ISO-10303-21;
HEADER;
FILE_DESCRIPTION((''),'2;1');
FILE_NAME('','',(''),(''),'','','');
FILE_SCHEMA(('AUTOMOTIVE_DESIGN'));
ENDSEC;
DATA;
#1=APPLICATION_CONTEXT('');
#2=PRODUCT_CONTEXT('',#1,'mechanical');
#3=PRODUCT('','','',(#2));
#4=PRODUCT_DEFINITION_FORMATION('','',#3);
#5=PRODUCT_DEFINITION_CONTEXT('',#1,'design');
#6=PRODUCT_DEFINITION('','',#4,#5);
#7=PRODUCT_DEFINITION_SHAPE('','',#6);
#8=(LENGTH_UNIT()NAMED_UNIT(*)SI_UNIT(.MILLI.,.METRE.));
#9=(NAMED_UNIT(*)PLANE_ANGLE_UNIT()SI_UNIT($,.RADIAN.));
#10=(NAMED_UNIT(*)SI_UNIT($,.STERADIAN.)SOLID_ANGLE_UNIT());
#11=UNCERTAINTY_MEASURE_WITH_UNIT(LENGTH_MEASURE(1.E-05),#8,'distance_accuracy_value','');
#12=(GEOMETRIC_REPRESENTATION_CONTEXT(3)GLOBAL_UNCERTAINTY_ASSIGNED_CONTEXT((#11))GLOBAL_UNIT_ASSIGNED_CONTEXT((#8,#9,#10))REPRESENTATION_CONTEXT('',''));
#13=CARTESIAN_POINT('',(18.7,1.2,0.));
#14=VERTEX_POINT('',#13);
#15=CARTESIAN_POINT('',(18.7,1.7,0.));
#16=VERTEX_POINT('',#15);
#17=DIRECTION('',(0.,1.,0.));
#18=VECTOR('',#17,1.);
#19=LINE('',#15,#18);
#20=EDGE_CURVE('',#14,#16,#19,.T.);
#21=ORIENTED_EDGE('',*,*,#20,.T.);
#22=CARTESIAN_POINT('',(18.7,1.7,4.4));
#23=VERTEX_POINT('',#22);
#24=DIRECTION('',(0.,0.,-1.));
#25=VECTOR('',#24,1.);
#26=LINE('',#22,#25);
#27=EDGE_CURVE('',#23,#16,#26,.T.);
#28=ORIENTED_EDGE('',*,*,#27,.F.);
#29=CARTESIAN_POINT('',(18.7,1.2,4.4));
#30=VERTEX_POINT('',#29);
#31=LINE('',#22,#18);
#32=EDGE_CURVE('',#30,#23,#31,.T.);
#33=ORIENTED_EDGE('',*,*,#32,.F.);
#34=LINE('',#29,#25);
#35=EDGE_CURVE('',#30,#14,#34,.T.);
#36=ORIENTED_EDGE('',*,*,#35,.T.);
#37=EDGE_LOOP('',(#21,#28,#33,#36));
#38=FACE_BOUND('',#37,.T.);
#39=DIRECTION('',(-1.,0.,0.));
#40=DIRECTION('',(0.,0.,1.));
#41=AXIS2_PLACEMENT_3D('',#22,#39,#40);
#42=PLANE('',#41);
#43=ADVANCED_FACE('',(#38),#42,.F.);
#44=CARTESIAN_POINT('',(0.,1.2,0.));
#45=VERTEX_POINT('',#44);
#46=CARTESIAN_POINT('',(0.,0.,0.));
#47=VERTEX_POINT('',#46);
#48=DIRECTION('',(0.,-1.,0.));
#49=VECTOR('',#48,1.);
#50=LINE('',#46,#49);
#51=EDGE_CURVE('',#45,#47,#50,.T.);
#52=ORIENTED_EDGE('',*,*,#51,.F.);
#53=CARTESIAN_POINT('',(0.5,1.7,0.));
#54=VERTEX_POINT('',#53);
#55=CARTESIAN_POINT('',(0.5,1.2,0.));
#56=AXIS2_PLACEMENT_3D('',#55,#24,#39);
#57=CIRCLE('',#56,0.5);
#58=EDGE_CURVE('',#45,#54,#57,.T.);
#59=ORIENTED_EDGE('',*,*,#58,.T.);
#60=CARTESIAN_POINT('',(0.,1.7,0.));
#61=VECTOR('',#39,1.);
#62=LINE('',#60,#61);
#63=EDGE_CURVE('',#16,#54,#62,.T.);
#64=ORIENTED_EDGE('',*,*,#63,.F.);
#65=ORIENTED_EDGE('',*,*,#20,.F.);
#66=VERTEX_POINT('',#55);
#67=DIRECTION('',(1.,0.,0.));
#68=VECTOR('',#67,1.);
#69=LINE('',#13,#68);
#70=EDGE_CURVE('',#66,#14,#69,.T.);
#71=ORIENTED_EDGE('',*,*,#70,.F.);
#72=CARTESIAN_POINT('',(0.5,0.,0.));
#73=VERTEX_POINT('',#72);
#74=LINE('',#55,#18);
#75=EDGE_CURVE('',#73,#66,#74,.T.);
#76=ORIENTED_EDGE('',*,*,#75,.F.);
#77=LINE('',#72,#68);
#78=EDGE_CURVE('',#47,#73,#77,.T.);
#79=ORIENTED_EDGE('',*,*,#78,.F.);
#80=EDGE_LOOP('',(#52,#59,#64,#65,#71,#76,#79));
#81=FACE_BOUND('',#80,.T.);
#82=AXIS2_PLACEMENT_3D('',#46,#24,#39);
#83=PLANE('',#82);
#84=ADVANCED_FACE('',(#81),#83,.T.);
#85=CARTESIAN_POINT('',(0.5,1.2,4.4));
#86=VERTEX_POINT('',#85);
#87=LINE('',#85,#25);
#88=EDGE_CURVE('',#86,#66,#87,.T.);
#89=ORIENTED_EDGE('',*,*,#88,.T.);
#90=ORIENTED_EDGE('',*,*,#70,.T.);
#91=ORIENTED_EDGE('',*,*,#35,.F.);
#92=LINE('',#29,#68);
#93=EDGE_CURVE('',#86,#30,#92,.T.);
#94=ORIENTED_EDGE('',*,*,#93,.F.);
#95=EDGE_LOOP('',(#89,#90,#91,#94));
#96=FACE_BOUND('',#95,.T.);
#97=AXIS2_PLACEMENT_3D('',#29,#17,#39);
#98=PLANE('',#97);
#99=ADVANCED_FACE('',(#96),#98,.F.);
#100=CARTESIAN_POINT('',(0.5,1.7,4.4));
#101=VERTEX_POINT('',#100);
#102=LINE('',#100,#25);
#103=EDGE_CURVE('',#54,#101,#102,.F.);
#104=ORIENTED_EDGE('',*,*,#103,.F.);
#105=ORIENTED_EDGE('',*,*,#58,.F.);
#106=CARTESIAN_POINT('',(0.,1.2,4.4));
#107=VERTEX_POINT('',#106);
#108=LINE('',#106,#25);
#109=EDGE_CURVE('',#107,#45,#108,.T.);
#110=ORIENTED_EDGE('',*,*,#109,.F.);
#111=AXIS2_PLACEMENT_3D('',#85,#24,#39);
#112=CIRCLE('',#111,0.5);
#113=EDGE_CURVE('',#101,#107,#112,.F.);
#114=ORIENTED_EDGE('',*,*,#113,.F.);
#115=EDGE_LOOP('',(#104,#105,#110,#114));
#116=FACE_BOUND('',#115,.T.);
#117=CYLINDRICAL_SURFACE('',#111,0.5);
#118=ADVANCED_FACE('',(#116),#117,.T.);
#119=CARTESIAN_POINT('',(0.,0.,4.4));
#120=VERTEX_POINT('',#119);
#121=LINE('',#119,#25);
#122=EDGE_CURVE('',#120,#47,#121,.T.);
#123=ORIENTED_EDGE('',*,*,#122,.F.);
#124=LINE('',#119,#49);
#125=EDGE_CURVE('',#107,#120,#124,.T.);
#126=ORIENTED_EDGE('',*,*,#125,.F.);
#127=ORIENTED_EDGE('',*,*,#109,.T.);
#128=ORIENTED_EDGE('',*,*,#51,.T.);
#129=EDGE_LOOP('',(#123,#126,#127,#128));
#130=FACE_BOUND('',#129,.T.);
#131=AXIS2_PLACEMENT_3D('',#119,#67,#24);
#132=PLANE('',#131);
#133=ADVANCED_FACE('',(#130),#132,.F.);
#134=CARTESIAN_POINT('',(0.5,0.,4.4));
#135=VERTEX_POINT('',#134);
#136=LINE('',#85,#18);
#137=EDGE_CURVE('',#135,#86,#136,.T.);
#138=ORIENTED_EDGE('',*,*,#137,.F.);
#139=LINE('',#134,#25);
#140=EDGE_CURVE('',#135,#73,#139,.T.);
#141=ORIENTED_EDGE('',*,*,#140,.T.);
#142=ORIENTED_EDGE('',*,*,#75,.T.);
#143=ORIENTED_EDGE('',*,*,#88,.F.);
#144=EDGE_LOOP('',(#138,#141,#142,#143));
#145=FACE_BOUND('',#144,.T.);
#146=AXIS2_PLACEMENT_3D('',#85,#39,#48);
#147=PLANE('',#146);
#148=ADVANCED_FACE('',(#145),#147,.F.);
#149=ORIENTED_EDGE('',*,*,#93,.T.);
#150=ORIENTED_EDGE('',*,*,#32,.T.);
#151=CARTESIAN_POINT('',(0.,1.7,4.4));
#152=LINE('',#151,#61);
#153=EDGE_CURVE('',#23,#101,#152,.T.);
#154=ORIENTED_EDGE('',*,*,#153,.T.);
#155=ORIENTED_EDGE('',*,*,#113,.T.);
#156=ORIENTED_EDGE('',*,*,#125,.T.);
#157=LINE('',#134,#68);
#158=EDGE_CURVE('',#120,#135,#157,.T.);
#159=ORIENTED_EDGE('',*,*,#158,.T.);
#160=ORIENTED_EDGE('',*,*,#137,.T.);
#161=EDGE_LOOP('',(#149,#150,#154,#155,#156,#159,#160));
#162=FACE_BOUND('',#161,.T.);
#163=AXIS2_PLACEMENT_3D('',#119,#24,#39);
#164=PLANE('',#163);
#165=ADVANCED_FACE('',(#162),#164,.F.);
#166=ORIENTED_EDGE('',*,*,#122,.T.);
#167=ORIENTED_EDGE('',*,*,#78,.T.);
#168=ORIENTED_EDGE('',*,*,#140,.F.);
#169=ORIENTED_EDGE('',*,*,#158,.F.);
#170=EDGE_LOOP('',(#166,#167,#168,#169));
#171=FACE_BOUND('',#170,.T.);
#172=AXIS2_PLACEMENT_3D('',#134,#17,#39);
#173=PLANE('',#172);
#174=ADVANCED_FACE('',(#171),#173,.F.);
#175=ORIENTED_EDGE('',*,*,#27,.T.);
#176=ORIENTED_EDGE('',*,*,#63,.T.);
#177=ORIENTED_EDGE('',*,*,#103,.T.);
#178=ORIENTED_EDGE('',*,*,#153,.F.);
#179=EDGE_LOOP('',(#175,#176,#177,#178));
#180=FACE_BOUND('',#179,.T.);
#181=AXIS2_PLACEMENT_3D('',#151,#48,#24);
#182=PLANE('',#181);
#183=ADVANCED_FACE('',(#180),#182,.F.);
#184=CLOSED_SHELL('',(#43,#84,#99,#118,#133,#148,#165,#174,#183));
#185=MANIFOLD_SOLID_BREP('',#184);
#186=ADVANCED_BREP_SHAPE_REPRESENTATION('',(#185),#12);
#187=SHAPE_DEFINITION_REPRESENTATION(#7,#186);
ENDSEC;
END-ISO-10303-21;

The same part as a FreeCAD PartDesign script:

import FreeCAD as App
import Part
import Sketcher

V = App.Vector
Q = App.Units.Quantity


def edges_at(feature, points):
    """Names of the edges that pass closest to the given points."""
    edges = feature.Shape.Edges
    near = lambda p: min(range(len(edges)), key=lambda i: edges[i].distToShape(Part.Vertex(*p))[0])
    return sorted({f"Edge{near(p) + 1}" for p in points})


def add_polygon(sketch, points):
    """Adds a closed chain of lines whose ends are joined by coincident constraints."""
    first, n = sketch.GeometryCount, len(points)
    for a, b in zip(points, points[1:] + points[:1]):
        sketch.addGeometry(Part.LineSegment(App.Vector(*a, 0), App.Vector(*b, 0)), False)
    for i in range(n):
        sketch.addConstraint(Sketcher.Constraint("Coincident", first + i, 2, first + (i + 1) % n, 1))

doc = App.newDocument("Part")
body = doc.addObject("PartDesign::Body", "Body")

# Sketch on XY plane
sketch1 = body.newObject("Sketcher::SketchObject", "Sketch")
sketch1.AttachmentSupport = (doc.getObject("XY_Plane"), [""])
sketch1.MapMode = "FlatFace"
add_polygon(sketch1, [(0, 1.7), (0, 0), (0.5, 0), (0.5, 1.2), (18.7, 1.2), (18.7, 1.7)])  # lines 0-5
sketch1.addConstraint(Sketcher.Constraint("Vertical", 0))
sketch1.addConstraint(Sketcher.Constraint("Horizontal", 1))
sketch1.addConstraint(Sketcher.Constraint("Vertical", 2))
sketch1.addConstraint(Sketcher.Constraint("Horizontal", 3))
sketch1.addConstraint(Sketcher.Constraint("Vertical", 4))
sketch1.addConstraint(Sketcher.Constraint("Horizontal", 5))
sketch1.addConstraint(Sketcher.Constraint("Coincident", 0, 2, -1, 1))
sketch1.addConstraint(Sketcher.Constraint("Equal", 1, 4))
sketch1.addConstraint(Sketcher.Constraint("DistanceX", 1, 1, 1, 2, Q("0.5 mm")))
sketch1.addConstraint(Sketcher.Constraint("DistanceX", 3, 1, 3, 2, Q("18.2 mm")))
sketch1.addConstraint(Sketcher.Constraint("DistanceY", 0, 2, 0, 1, Q("1.7 mm")))
pad1 = body.newObject("PartDesign::Pad", "Pad")
pad1.Profile = sketch1
pad1.Length = 4.4
doc.recompute()

fillet = body.newObject("PartDesign::Fillet", "Fillet")
fillet.Base = (pad1, edges_at(pad1, [(0, 1.7, 2.2)]))
fillet.Radius = 0.5

doc.recompute()
